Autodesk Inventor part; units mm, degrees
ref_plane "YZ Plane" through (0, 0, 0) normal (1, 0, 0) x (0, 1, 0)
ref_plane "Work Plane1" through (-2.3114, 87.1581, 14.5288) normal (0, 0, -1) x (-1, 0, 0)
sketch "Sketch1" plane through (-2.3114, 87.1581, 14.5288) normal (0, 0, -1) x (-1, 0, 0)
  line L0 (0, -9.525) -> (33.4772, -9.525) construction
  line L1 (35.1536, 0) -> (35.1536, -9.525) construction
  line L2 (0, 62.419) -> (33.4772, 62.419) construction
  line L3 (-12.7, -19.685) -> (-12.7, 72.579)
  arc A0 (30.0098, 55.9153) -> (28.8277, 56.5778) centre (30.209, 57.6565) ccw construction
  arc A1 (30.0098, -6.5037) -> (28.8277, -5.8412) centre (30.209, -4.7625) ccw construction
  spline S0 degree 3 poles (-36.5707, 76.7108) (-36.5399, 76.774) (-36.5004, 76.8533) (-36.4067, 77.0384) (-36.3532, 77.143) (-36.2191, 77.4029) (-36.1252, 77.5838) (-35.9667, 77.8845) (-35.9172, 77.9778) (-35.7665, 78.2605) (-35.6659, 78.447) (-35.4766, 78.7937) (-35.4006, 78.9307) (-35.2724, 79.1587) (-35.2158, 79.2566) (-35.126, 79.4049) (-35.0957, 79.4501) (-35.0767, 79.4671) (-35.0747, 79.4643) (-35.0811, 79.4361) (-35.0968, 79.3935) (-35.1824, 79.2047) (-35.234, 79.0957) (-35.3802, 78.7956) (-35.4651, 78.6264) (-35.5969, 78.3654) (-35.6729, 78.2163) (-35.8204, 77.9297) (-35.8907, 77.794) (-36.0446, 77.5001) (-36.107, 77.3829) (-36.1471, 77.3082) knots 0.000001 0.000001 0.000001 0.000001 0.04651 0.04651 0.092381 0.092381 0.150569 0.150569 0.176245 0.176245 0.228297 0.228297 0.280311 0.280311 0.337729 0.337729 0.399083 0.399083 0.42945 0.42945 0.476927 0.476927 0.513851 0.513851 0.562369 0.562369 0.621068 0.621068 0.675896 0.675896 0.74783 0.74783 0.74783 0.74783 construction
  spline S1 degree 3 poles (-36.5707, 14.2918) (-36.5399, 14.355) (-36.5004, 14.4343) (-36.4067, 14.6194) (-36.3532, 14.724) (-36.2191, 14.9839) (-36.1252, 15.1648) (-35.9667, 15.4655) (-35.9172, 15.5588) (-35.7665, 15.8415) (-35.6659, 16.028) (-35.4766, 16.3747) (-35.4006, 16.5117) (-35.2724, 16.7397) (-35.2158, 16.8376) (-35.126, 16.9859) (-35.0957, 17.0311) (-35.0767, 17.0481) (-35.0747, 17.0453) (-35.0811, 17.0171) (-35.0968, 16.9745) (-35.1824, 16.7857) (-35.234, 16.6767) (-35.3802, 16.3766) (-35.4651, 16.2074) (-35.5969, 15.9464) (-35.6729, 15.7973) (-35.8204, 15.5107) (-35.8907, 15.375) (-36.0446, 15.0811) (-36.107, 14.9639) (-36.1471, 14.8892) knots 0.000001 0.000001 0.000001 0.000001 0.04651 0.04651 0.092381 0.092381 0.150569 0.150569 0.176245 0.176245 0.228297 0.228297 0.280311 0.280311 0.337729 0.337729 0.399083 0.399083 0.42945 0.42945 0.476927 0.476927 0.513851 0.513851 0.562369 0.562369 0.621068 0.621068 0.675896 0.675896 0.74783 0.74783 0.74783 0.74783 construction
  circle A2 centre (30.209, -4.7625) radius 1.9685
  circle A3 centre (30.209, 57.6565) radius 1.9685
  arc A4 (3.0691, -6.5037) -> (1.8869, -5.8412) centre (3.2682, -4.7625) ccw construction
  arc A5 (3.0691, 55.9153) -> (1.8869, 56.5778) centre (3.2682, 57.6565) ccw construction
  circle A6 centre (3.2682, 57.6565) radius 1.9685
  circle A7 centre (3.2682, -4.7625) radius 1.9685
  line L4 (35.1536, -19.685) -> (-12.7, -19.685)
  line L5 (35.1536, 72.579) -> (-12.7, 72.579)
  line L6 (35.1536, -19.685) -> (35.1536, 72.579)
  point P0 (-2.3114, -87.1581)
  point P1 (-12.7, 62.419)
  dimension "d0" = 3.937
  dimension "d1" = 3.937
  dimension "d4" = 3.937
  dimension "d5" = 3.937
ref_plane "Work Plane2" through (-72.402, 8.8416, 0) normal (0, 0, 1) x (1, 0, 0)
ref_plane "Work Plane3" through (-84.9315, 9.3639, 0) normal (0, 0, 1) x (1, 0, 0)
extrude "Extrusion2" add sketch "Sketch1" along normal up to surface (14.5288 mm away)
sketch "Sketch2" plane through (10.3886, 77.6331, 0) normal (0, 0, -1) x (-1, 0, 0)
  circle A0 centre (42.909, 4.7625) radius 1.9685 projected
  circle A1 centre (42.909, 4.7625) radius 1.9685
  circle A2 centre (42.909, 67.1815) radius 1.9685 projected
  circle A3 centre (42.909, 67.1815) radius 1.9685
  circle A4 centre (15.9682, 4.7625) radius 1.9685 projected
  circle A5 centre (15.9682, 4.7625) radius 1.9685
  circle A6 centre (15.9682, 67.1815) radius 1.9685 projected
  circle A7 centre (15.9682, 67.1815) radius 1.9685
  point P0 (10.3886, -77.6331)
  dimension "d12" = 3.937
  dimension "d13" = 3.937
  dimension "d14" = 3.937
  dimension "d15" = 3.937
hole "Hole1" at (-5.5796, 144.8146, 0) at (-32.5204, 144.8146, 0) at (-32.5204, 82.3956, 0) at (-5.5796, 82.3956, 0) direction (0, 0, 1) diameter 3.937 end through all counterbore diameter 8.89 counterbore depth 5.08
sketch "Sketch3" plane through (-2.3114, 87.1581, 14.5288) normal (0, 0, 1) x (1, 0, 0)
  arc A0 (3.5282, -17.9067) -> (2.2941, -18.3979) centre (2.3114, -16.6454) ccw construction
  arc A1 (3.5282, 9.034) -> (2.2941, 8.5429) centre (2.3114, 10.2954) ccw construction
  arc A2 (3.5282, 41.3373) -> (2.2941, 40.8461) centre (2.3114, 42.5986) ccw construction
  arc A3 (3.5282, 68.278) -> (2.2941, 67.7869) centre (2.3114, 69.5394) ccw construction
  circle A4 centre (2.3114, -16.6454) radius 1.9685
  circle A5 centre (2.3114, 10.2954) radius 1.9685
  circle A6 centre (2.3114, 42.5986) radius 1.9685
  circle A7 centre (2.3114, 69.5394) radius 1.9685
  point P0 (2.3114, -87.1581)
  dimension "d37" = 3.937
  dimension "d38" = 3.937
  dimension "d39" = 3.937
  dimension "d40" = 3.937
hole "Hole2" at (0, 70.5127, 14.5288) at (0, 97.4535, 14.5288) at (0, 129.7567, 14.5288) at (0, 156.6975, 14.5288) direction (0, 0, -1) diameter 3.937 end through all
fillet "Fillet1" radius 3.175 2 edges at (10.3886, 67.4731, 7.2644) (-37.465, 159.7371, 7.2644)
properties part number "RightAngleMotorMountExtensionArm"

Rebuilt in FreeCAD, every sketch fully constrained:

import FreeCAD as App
import Part
import Sketcher
Q = App.Units.Quantity


def edges_at(feature, points):
    """Names of the edges that pass closest to the given points."""
    edges = feature.Shape.Edges
    near = lambda p: min(range(len(edges)), key=lambda i: edges[i].distToShape(Part.Vertex(*p))[0])
    return sorted({f"Edge{near(p) + 1}" for p in points})


def add_polygon(sketch, points):
    """Adds a closed chain of lines whose ends are joined by coincident constraints."""
    first, n = sketch.GeometryCount, len(points)
    for a, b in zip(points, points[1:] + points[:1]):
        sketch.addGeometry(Part.LineSegment(App.Vector(*a, 0), App.Vector(*b, 0)), False)
    for i in range(n):
        sketch.addConstraint(Sketcher.Constraint("Coincident", first + i, 2, first + (i + 1) % n, 1))

doc = App.newDocument("Part")
body = doc.addObject("PartDesign::Body", "Body")

# Sketch on XY plane
sketch1 = doc.addObject("Sketcher::SketchObject", "Sketch")
body.addObject(sketch1)
sketch1.AttachmentSupport = (doc.XY_Plane, [""])
sketch1.MapMode = "FlatFace"
sketch1.AttachmentOffset = App.Placement(App.Vector(0, 0, 0.572 * 25.4), App.Rotation())
add_polygon(sketch1, [(10.4, 159.7), (10.4, 67.5), (-37.5, 67.5), (-37.5, 159.7)])  # lines 0-3
sketch1.addGeometry(Part.Circle(App.Vector(-5.6, 82.4, 0), App.Vector(0, 0, 1), 2), False)  # 4
sketch1.addGeometry(Part.Circle(App.Vector(-32.5, 82.4, 0), App.Vector(0, 0, 1), 2), False)  # 5
sketch1.addGeometry(Part.Circle(App.Vector(-5.6, 144.8, 0), App.Vector(0, 0, 1), 2), False)  # 6
sketch1.addGeometry(Part.Circle(App.Vector(-32.5, 144.8, 0), App.Vector(0, 0, 1), 2), False)  # 7
sketch1.addConstraint([
    Sketcher.Constraint("Vertical", 0),
    Sketcher.Constraint("Horizontal", 1),
    Sketcher.Constraint("Vertical", 2),
    Sketcher.Constraint("Horizontal", 3),
    Sketcher.Constraint("Equal", 4, 5),
    Sketcher.Constraint("Equal", 5, 6),
    Sketcher.Constraint("Equal", 6, 7),
    Sketcher.Constraint("Horizontal", 4, 3, 5, 3),
    Sketcher.Constraint("Horizontal", 6, 3, 7, 3),
    Sketcher.Constraint("Vertical", 4, 3, 6, 3),
    Sketcher.Constraint("Vertical", 5, 3, 7, 3),
    Sketcher.Constraint("Diameter", 4, Q("0.155 in")),
    Sketcher.Constraint("DistanceX", 1, 2, 1, 1, Q("1.884 in")),
    Sketcher.Constraint("DistanceX", -1, 1, 0, 2, Q("0.409 in")),
    Sketcher.Constraint("DistanceY", 0, 2, 0, 1, 92.264),
    Sketcher.Constraint("DistanceY", 0, 2, 4, 3, Q("0.5875 in")),
    Sketcher.Constraint("DistanceY", 7, 3, 2, 2, Q("0.5875 in")),
    Sketcher.Constraint("DistanceX", 4, 3, -1, 1, 5.5796),
    Sketcher.Constraint("DistanceY", -1, 1, 4, 3, 82.3956),
    Sketcher.Constraint("DistanceX", 5, 3, -1, 1, 32.5204),
])
pad1 = doc.addObject("PartDesign::Pad", "Pad")
body.addObject(pad1)
pad1.Profile = sketch1
pad1.Length = Q("0.572 in")
pad1.Reversed = True

# Sketch on XY plane
sketch2 = doc.addObject("Sketcher::SketchObject", "Sketch001")
body.addObject(sketch2)
sketch2.AttachmentSupport = (doc.XY_Plane, [""])
sketch2.MapMode = "FlatFace"
sketch2.addGeometry([
    Part.Circle(App.Vector(-5.6, 144.8, 0), App.Vector(0, 0, 1), 2),
    Part.Circle(App.Vector(-32.5, 144.8, 0), App.Vector(0, 0, 1), 2),
    Part.Circle(App.Vector(-32.5, 82.4, 0), App.Vector(0, 0, 1), 2),
    Part.Circle(App.Vector(-5.6, 82.4, 0), App.Vector(0, 0, 1), 2),
], False)
sketch2.addConstraint([
    Sketcher.Constraint("Equal", 0, 1),
    Sketcher.Constraint("Equal", 1, 2),
    Sketcher.Constraint("Equal", 2, 3),
    Sketcher.Constraint("Horizontal", 0, 3, 1, 3),
    Sketcher.Constraint("Horizontal", 2, 3, 3, 3),
    Sketcher.Constraint("Vertical", 1, 3, 2, 3),
    Sketcher.Constraint("Vertical", 0, 3, 3, 3),
    Sketcher.Constraint("Diameter", 0, Q("0.155 in")),
    Sketcher.Constraint("DistanceX", 0, 3, -1, 1, 5.5796),
    Sketcher.Constraint("DistanceY", -1, 1, 0, 3, 144.8146),
    Sketcher.Constraint("DistanceX", 1, 3, -1, 1, 32.5204),
    Sketcher.Constraint("DistanceY", -1, 1, 2, 3, 82.3956),
])
doc.recompute()
hole = doc.addObject("PartDesign::Hole", "Hole")
body.addObject(hole)
hole.Profile = sketch2
hole.ThreadType = "None"
hole.Diameter = Q("0.155 in")
hole.DepthType = "ThroughAll"
hole.HoleCutType = "Counterbore"
hole.HoleCutDiameter = Q("0.35 in")
hole.HoleCutDepth = Q("0.2 in")
hole.Reversed = True

# Sketch on XY plane
sketch3 = doc.addObject("Sketcher::SketchObject", "Sketch002")
body.addObject(sketch3)
sketch3.AttachmentSupport = (doc.XY_Plane, [""])
sketch3.MapMode = "FlatFace"
sketch3.AttachmentOffset = App.Placement(App.Vector(0, 0, 0.572 * 25.4), App.Rotation())
sketch3.addGeometry([
    Part.Circle(App.Vector(0, 70.5, 0), App.Vector(0, 0, 1), 2),
    Part.Circle(App.Vector(0, 97.5, 0), App.Vector(0, 0, 1), 2),
    Part.Circle(App.Vector(0, 129.8, 0), App.Vector(0, 0, 1), 2),
    Part.Circle(App.Vector(0, 156.7, 0), App.Vector(0, 0, 1), 2),
], False)
sketch3.addConstraint([
    Sketcher.Constraint("Equal", 0, 1),
    Sketcher.Constraint("Equal", 1, 2),
    Sketcher.Constraint("Equal", 2, 3),
    Sketcher.Constraint("PointOnObject", 0, 3, -2),
    Sketcher.Constraint("PointOnObject", 1, 3, -2),
    Sketcher.Constraint("PointOnObject", 2, 3, -2),
    Sketcher.Constraint("PointOnObject", 3, 3, -2),
    Sketcher.Constraint("Diameter", 0, Q("0.155 in")),
    Sketcher.Constraint("DistanceY", -1, 1, 0, 3, Q("2.7761 in")),
    Sketcher.Constraint("DistanceY", -1, 1, 3, 3, Q("6.1692 in")),
    Sketcher.Constraint("DistanceY", -1, 1, 1, 3, 97.4535),
    Sketcher.Constraint("DistanceY", -1, 1, 2, 3, 129.7567),
])
doc.recompute()
hole2 = doc.addObject("PartDesign::Hole", "Hole001")
body.addObject(hole2)
hole2.Profile = sketch3
hole2.ThreadType = "None"
hole2.Diameter = Q("0.155 in")
hole2.DepthType = "ThroughAll"
doc.recompute()

fillet = doc.addObject("PartDesign::Fillet", "Fillet")
body.addObject(fillet)
fillet.Base = (hole2, edges_at(hole2, [(10.389, 67.473, 7.264), (-37.465, 159.737, 7.264)]))
fillet.Radius = Q("0.125 in")

doc.recompute()
